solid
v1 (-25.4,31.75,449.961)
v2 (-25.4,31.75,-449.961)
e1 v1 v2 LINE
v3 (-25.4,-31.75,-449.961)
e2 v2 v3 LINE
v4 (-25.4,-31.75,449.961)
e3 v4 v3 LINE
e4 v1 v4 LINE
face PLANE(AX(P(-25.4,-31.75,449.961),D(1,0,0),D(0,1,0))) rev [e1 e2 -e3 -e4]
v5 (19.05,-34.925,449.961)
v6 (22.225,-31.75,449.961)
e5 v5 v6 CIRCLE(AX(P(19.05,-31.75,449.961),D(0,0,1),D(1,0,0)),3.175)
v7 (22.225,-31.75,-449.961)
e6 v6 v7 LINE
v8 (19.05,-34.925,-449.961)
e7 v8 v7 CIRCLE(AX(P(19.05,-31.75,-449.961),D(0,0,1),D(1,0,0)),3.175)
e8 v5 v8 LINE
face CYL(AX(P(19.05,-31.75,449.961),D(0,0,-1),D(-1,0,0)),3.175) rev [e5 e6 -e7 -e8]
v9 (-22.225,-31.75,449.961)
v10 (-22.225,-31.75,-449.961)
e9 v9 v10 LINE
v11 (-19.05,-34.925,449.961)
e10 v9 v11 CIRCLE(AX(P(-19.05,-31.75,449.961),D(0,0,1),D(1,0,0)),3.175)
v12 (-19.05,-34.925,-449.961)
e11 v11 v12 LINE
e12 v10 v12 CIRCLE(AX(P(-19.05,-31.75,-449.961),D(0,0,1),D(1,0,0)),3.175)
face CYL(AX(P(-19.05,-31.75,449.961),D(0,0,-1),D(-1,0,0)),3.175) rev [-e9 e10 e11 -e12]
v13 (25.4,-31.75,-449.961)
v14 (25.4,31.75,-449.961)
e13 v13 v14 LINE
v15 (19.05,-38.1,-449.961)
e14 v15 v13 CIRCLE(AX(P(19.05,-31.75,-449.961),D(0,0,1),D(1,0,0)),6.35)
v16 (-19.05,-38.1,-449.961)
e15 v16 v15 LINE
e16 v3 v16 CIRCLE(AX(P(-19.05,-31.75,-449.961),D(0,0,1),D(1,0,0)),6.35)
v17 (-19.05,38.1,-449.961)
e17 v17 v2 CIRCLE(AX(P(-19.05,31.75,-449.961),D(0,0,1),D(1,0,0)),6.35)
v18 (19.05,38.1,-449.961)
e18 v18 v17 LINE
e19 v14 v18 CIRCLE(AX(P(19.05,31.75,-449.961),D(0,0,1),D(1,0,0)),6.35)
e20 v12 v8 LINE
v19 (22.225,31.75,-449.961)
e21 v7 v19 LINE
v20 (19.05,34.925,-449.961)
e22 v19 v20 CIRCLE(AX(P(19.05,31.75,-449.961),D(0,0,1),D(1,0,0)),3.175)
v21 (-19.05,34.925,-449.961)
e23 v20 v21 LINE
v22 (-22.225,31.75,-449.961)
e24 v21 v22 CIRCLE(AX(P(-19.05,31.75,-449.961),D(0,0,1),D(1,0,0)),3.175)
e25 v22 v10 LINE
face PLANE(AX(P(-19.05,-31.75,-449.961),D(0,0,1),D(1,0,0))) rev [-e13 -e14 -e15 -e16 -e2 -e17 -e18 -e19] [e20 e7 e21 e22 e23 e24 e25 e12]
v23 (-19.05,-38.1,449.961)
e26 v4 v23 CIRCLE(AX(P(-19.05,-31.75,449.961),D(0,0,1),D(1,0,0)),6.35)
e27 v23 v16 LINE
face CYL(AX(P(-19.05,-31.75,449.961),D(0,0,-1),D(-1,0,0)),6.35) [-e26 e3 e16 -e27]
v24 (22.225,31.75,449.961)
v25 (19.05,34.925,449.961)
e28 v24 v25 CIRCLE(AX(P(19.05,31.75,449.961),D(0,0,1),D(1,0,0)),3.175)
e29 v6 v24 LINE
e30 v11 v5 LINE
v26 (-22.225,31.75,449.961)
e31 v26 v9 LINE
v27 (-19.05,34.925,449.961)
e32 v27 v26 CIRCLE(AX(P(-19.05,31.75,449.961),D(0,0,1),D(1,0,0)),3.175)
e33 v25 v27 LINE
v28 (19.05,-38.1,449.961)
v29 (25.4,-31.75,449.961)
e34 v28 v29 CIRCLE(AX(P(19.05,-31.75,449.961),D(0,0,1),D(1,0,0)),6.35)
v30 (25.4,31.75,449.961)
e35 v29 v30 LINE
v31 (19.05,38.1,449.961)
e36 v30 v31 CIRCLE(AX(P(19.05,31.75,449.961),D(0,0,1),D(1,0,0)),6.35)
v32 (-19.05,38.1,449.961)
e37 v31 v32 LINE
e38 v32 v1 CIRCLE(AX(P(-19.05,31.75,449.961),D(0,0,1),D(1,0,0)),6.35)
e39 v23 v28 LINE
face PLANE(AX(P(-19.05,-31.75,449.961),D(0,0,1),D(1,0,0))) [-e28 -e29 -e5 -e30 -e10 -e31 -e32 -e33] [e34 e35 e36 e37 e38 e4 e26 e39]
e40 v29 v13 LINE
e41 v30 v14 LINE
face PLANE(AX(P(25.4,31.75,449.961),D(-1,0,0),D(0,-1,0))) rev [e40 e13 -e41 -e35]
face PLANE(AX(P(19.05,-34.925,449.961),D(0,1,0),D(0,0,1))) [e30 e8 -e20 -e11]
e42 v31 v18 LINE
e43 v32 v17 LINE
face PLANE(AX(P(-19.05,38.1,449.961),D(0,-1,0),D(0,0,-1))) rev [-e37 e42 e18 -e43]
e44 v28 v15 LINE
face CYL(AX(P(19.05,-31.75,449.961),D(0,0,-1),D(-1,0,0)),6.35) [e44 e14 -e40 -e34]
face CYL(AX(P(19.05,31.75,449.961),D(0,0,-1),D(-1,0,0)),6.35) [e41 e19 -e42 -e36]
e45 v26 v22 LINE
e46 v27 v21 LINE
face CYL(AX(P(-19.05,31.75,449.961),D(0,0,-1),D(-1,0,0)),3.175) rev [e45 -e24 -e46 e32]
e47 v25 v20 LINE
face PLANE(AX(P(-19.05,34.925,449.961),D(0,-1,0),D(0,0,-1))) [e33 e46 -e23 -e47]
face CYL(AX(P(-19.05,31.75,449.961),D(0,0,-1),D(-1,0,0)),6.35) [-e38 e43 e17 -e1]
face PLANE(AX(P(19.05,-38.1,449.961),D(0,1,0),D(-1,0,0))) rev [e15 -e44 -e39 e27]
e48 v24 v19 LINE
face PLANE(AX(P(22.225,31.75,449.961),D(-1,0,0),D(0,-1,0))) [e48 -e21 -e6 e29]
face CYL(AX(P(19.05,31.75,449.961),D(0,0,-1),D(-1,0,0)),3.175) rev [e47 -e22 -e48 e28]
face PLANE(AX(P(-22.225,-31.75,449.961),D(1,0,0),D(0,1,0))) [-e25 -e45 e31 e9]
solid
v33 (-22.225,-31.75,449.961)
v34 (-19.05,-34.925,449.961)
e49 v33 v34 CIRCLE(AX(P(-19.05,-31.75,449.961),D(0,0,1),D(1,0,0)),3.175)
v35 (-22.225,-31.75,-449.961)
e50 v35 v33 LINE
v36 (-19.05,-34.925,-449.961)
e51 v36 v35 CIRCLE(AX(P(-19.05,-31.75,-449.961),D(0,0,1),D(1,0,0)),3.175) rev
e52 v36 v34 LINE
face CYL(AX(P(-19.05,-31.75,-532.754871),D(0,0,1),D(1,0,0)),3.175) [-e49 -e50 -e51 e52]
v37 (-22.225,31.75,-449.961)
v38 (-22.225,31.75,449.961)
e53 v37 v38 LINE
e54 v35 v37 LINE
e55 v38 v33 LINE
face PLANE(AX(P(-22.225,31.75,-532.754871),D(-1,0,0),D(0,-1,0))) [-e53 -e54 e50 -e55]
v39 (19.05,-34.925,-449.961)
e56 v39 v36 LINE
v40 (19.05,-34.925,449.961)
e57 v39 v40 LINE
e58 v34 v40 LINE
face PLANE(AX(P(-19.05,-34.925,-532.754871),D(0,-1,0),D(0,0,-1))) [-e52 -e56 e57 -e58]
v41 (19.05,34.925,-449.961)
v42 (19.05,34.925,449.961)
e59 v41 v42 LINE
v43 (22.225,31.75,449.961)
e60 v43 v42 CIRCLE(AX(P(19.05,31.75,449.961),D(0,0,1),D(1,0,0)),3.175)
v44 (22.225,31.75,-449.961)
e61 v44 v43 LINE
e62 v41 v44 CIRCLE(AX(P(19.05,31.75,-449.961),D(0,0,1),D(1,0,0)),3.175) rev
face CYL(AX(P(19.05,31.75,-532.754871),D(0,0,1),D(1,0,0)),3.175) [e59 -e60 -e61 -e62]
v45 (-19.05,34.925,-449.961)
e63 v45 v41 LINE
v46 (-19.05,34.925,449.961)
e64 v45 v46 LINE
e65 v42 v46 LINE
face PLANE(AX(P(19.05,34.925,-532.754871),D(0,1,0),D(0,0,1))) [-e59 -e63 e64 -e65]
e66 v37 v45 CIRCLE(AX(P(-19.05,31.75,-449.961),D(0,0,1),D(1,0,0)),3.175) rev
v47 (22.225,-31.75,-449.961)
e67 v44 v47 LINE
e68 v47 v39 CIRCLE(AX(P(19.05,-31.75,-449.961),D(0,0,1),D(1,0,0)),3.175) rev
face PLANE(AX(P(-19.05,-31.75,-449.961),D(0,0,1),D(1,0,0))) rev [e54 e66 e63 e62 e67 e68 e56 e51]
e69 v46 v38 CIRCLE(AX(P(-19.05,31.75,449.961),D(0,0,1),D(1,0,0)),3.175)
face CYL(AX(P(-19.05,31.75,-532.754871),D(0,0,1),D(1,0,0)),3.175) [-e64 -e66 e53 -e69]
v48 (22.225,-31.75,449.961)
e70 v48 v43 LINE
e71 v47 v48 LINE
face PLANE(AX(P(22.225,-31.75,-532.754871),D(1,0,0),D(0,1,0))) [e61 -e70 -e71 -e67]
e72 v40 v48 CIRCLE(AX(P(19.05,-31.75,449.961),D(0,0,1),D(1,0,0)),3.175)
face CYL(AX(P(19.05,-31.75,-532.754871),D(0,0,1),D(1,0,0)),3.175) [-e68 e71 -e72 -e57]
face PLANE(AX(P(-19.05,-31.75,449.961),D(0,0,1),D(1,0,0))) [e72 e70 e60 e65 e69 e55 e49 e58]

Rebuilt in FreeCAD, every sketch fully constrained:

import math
import FreeCAD as App
import Part
import Sketcher
Q = App.Units.Quantity

doc = App.newDocument("Part")
body = doc.addObject("PartDesign::Body", "Body")

sketch1 = doc.addObject("Sketcher::SketchObject", "Sketch")
body.addObject(sketch1)
sketch1.AttachmentSupport = (doc.XY_Plane, [""])
sketch1.MapMode = "FlatFace"
sketch1.addGeometry([
    Part.LineSegment(App.Vector(-19.1, -38.1, 0), App.Vector(19.1, -38.1, 0)),
    Part.ArcOfCircle(Part.Circle(App.Vector(19.1, -31.8, 0), App.Vector(0, 0, 1), 6.3), math.radians(-90), math.radians(0)),
    Part.LineSegment(App.Vector(25.4, -31.8, 0), App.Vector(25.4, 31.8, 0)),
    Part.ArcOfCircle(Part.Circle(App.Vector(19.1, 31.8, 0), App.Vector(0, 0, 1), 6.3), math.radians(0), math.radians(90)),
    Part.LineSegment(App.Vector(19.1, 38.1, 0), App.Vector(-19.1, 38.1, 0)),
    Part.ArcOfCircle(Part.Circle(App.Vector(-19.1, 31.8, 0), App.Vector(0, 0, 1), 6.3), math.radians(90), math.radians(180)),
    Part.LineSegment(App.Vector(-25.4, 31.8, 0), App.Vector(-25.4, -31.8, 0)),
    Part.ArcOfCircle(Part.Circle(App.Vector(-19.1, -31.8, 0), App.Vector(0, 0, 1), 6.3), math.radians(180), math.radians(270)),
    Part.LineSegment(App.Vector(19.1, -34.9, 0), App.Vector(-19.1, -34.9, 0)),
    Part.ArcOfCircle(Part.Circle(App.Vector(-19, -31.7, 0), App.Vector(0, 0, 1), 3.2), math.radians(-180), math.radians(-90)),
    Part.LineSegment(App.Vector(-22.2, -31.8, 0), App.Vector(-22.2, 31.8, 0)),
    Part.ArcOfCircle(Part.Circle(App.Vector(-19, 31.7, 0), App.Vector(0, 0, 1), 3.2), math.radians(90), math.radians(180)),
    Part.LineSegment(App.Vector(-19.1, 34.9, 0), App.Vector(19.1, 34.9, 0)),
    Part.ArcOfCircle(Part.Circle(App.Vector(19, 31.7, 0), App.Vector(0, 0, 1), 3.2), math.radians(0), math.radians(90)),
    Part.LineSegment(App.Vector(22.2, 31.8, 0), App.Vector(22.2, -31.8, 0)),
    Part.ArcOfCircle(Part.Circle(App.Vector(19, -31.7, 0), App.Vector(0, 0, 1), 3.2), math.radians(-90), math.radians(0)),
], False)
sketch1.addConstraint([
    Sketcher.Constraint("Tangent", 0, 2, 1, 1),
    Sketcher.Constraint("Tangent", 1, 2, 2, 1),
    Sketcher.Constraint("Tangent", 2, 2, 3, 1),
    Sketcher.Constraint("Tangent", 3, 2, 4, 1),
    Sketcher.Constraint("Tangent", 4, 2, 5, 1),
    Sketcher.Constraint("Tangent", 5, 2, 6, 1),
    Sketcher.Constraint("Tangent", 6, 2, 7, 1),
    Sketcher.Constraint("Tangent", 7, 2, 0, 1),
    Sketcher.Constraint("Tangent", 8, 2, 9, 2),
    Sketcher.Constraint("Tangent", 9, 1, 10, 1),
    Sketcher.Constraint("Tangent", 10, 2, 11, 2),
    Sketcher.Constraint("Tangent", 11, 1, 12, 1),
    Sketcher.Constraint("Tangent", 12, 2, 13, 2),
    Sketcher.Constraint("Tangent", 13, 1, 14, 1),
    Sketcher.Constraint("Tangent", 14, 2, 15, 2),
    Sketcher.Constraint("Tangent", 15, 1, 8, 1),
    Sketcher.Constraint("Horizontal", 0),
    Sketcher.Constraint("Vertical", 2),
    Sketcher.Constraint("Horizontal", 4),
    Sketcher.Constraint("Vertical", 6),
    Sketcher.Constraint("Horizontal", 8),
    Sketcher.Constraint("Vertical", 10),
    Sketcher.Constraint("Horizontal", 12),
    Sketcher.Constraint("Vertical", 14),
    Sketcher.Constraint("Coincident", 9, 3, 7, 3),
    Sketcher.Constraint("Coincident", 11, 3, 5, 3),
    Sketcher.Constraint("Coincident", 13, 3, 3, 3),
    Sketcher.Constraint("Equal", 1, 3),
    Sketcher.Constraint("Equal", 3, 5),
    Sketcher.Constraint("Equal", 5, 7),
    Sketcher.Constraint("Equal", 13, 15),
    Sketcher.Constraint("Symmetric", 1, 3, 5, 3, -1, 1),
    Sketcher.Constraint("Radius", 1, Q("0.25 in")),
    Sketcher.Constraint("DistanceX", 0, 1, 0, 2, Q("1.5 in")),
    Sketcher.Constraint("DistanceY", 2, 1, 2, 2, Q("2.5 in")),
    Sketcher.Constraint("Radius", 9, Q("0.125 in")),
])
pad1 = doc.addObject("PartDesign::Pad", "Pad")
body.addObject(pad1)
pad1.Profile = sketch1
pad1.Length = Q("35.43 in")
pad1.Midplane = True
body2 = doc.addObject("PartDesign::Body", "Body001")

sketch2 = doc.addObject("Sketcher::SketchObject", "Sketch001")
body2.addObject(sketch2)
sketch2.AttachmentSupport = (doc.getObject("XY_Plane001"), [""])
sketch2.MapMode = "FlatFace"
sketch2.AttachmentOffset = App.Placement(App.Vector(0, 0, 17.715 * 25.4), App.Rotation())
sketch2.addGeometry([
    Part.LineSegment(App.Vector(-19.1, -34.9, 0), App.Vector(19.1, -34.9, 0)),
    Part.ArcOfCircle(Part.Circle(App.Vector(19, -31.7, 0), App.Vector(0, 0, 1), 3.2), math.radians(-90), math.radians(0)),
    Part.LineSegment(App.Vector(22.2, -31.8, 0), App.Vector(22.2, 31.8, 0)),
    Part.ArcOfCircle(Part.Circle(App.Vector(19, 31.7, 0), App.Vector(0, 0, 1), 3.2), math.radians(0), math.radians(90)),
    Part.LineSegment(App.Vector(19.1, 34.9, 0), App.Vector(-19.1, 34.9, 0)),
    Part.ArcOfCircle(Part.Circle(App.Vector(-19, 31.7, 0), App.Vector(0, 0, 1), 3.2), math.radians(90), math.radians(180)),
    Part.LineSegment(App.Vector(-22.2, 31.8, 0), App.Vector(-22.2, -31.8, 0)),
    Part.ArcOfCircle(Part.Circle(App.Vector(-19, -31.7, 0), App.Vector(0, 0, 1), 3.2), math.radians(-180), math.radians(-90)),
], False)
sketch2.addConstraint([
    Sketcher.Constraint("Tangent", 0, 2, 1, 1),
    Sketcher.Constraint("Tangent", 1, 2, 2, 1),
    Sketcher.Constraint("Tangent", 2, 2, 3, 1),
    Sketcher.Constraint("Tangent", 3, 2, 4, 1),
    Sketcher.Constraint("Tangent", 4, 2, 5, 1),
    Sketcher.Constraint("Tangent", 5, 2, 6, 1),
    Sketcher.Constraint("Tangent", 6, 2, 7, 1),
    Sketcher.Constraint("Tangent", 7, 2, 0, 1),
    Sketcher.Constraint("Horizontal", 0),
    Sketcher.Constraint("Vertical", 2),
    Sketcher.Constraint("Horizontal", 4),
    Sketcher.Constraint("Vertical", 6),
    Sketcher.Constraint("Equal", 1, 3),
    Sketcher.Constraint("Equal", 3, 5),
    Sketcher.Constraint("Equal", 5, 7),
    Sketcher.Constraint("Symmetric", 1, 3, 5, 3, -1, 1),
    Sketcher.Constraint("DistanceX", 0, 1, 0, 2, Q("1.5 in")),
    Sketcher.Constraint("DistanceY", 2, 1, 2, 2, Q("2.5 in")),
    Sketcher.Constraint("Radius", 1, Q("0.125 in")),
])
pad2 = doc.addObject("PartDesign::Pad", "Pad001")
body2.addObject(pad2)
pad2.Profile = sketch2
pad2.Length = Q("35.43 in")
pad2.Reversed = True

doc.recompute()
